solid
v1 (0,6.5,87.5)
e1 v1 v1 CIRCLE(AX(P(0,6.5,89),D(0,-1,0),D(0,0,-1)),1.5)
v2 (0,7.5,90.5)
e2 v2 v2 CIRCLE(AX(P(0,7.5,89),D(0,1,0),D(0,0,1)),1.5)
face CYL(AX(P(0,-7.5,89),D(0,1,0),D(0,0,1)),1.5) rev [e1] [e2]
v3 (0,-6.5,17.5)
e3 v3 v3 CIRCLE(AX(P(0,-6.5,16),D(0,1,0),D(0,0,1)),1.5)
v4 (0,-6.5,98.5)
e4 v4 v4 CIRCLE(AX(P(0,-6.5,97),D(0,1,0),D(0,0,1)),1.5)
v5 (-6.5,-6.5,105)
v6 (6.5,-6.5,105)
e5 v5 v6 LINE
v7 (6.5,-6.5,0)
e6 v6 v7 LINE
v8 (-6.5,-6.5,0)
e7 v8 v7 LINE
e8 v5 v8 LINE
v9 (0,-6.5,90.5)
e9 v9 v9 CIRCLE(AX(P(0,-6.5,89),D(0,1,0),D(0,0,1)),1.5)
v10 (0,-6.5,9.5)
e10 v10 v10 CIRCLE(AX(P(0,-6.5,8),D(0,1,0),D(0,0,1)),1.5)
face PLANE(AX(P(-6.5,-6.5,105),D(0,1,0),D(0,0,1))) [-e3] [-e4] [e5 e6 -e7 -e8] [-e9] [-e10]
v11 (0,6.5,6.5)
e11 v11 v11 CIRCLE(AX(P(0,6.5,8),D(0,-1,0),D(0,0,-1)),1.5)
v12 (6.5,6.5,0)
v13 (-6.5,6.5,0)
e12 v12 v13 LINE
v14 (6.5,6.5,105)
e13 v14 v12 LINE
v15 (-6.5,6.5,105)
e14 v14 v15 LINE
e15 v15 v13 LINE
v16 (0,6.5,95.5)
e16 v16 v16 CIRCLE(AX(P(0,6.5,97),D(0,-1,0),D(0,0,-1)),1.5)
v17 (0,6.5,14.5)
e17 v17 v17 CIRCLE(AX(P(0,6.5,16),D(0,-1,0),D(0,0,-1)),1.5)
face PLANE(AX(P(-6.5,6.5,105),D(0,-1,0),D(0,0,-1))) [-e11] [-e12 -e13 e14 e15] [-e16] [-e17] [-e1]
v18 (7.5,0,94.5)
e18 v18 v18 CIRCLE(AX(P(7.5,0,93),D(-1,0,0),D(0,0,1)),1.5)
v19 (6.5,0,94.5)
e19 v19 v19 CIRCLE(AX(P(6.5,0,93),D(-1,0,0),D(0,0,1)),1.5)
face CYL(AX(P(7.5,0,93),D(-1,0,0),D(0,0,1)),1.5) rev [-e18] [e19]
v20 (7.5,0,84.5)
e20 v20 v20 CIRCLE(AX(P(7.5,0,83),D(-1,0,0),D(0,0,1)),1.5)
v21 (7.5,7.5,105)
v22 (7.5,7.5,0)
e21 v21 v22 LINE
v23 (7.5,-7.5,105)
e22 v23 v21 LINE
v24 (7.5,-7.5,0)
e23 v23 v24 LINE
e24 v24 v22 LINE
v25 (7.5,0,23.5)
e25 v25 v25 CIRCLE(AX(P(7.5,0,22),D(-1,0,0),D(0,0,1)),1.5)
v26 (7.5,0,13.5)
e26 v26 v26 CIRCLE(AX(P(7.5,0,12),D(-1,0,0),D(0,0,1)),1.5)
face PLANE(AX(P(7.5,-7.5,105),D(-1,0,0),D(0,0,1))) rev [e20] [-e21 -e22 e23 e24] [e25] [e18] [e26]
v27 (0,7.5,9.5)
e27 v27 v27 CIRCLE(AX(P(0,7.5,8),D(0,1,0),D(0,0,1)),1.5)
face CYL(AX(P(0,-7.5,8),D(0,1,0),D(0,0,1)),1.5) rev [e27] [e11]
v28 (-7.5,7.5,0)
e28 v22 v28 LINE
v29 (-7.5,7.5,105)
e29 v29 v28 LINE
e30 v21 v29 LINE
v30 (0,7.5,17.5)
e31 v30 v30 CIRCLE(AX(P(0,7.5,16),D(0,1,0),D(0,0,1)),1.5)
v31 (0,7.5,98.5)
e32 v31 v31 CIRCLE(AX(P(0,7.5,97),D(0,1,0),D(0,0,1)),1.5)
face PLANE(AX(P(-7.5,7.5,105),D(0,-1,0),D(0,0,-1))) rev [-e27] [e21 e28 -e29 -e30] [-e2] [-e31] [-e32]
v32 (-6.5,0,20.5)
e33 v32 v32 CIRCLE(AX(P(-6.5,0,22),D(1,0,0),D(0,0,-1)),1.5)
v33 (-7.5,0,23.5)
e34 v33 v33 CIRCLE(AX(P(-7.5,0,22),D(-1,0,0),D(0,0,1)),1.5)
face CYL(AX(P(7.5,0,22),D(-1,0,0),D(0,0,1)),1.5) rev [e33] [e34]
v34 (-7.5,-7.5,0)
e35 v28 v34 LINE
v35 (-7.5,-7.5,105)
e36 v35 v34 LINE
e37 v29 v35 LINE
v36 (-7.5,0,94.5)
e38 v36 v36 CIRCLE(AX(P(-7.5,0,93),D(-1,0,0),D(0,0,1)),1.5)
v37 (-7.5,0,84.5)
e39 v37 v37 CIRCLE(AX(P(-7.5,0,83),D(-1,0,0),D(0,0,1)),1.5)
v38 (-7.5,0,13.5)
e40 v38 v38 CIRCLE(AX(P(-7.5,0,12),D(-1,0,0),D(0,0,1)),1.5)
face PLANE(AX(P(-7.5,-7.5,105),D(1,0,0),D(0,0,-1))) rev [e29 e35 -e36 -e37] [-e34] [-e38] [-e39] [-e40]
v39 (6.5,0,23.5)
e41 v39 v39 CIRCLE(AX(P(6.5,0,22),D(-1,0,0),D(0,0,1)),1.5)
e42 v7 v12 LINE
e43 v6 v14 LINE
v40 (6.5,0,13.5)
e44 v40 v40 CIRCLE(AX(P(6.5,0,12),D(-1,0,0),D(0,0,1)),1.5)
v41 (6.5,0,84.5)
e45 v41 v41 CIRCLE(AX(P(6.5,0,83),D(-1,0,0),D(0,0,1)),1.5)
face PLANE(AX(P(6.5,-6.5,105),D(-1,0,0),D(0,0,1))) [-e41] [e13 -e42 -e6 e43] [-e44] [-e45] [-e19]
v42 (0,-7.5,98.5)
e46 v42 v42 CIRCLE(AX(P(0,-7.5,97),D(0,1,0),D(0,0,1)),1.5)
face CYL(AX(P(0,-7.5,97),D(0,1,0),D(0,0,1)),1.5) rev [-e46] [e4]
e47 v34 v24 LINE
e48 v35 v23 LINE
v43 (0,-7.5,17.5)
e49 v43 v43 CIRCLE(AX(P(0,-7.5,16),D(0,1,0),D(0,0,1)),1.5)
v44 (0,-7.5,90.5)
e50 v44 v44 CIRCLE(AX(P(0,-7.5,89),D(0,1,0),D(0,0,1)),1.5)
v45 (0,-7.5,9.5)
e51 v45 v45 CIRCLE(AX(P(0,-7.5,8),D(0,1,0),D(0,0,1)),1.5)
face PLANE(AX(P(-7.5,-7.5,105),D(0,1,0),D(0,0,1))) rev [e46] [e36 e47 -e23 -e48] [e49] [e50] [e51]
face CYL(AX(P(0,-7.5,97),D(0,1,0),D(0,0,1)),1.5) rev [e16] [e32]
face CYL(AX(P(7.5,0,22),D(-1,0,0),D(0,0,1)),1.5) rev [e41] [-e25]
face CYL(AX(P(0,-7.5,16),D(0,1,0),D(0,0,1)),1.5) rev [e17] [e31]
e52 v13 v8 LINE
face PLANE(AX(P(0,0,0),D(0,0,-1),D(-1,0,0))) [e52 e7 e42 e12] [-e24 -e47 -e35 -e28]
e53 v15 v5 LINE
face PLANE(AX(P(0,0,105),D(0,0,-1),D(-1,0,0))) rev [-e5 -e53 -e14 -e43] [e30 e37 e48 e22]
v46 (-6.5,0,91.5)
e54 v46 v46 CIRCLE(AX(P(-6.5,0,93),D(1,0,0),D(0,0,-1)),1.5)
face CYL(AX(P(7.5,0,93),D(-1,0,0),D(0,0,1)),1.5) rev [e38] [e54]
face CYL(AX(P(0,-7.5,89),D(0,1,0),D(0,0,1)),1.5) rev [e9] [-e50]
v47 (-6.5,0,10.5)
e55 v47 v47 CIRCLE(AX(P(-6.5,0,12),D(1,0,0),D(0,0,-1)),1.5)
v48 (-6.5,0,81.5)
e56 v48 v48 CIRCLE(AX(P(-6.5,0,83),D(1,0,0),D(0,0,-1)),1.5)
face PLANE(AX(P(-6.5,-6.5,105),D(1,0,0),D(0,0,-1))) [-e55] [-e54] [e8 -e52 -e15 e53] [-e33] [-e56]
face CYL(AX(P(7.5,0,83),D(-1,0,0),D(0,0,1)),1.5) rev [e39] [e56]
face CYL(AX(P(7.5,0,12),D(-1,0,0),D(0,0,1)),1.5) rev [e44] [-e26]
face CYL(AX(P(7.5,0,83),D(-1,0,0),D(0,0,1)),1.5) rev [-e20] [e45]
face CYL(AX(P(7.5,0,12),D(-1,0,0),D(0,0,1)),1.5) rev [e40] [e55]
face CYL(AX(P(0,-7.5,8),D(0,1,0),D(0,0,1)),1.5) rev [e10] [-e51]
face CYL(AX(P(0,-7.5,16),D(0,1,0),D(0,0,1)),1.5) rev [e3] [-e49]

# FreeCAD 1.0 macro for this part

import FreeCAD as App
import Part
import Sketcher
from FreeCAD import Vector


def add_polygon(sketch, points):
    """Adds a closed chain of lines whose ends are joined by coincident constraints."""
    first, n = sketch.GeometryCount, len(points)
    for a, b in zip(points, points[1:] + points[:1]):
        sketch.addGeometry(Part.LineSegment(App.Vector(*a, 0), App.Vector(*b, 0)), False)
    for i in range(n):
        sketch.addConstraint(Sketcher.Constraint("Coincident", first + i, 2, first + (i + 1) % n, 1))

doc = App.newDocument("Part")
params = doc.addObject("Spreadsheet::Sheet", "Params")
for row, (alias, value) in enumerate([
    ("sketch1_width", "15 mm"),
    ("sketch1_width2", "13 mm"),
    ("pad1_length", "105 mm"),
    ("sketch2_diameter", "3 mm"),
    ("sketch3_diameter", "3 mm"),
], start=1):
    params.set(f"A{row}", alias)
    params.set(f"B{row}", "=" + value)
    params.setAlias(f"B{row}", alias)

body = doc.addObject("PartDesign::Body", "Body")

sketch1 = body.newObject("Sketcher::SketchObject", "Sketch")
sketch1.AttachmentSupport = (doc.getObject("XY_Plane"), [""])
sketch1.MapMode = "FlatFace"
add_polygon(sketch1, [(-7.5, 7.5), (-7.5, -7.5), (7.5, -7.5), (7.5, 7.5)])
add_polygon(sketch1, [(6.5, -6.5), (-6.5, -6.5), (-6.5, 6.5), (6.5, 6.5)])
sketch1.addConstraint([
    Sketcher.Constraint("Vertical", 0),
    Sketcher.Constraint("Horizontal", 1),
    Sketcher.Constraint("Vertical", 2),
    Sketcher.Constraint("Horizontal", 3),
    Sketcher.Constraint("Horizontal", 4),
    Sketcher.Constraint("Vertical", 5),
    Sketcher.Constraint("Horizontal", 6),
    Sketcher.Constraint("Vertical", 7),
    Sketcher.Constraint("Symmetric", 0, 2, 2, 2, -1, 1),
    Sketcher.Constraint("Symmetric", 4, 2, 6, 2, -1, 1),
    Sketcher.Constraint("Equal", 3, 0),
    Sketcher.Constraint("Equal", 6, 5),
    Sketcher.Constraint("DistanceX", 1, 1, 1, 2, 15.0),
    Sketcher.Constraint("DistanceX", 4, 2, 4, 1, 13.0),
])
sketch1.setExpression("Constraints[20]", "Params.sketch1_width")
sketch1.setExpression("Constraints[21]", "Params.sketch1_width2")
pad1 = body.newObject("PartDesign::Pad", "Pad")
pad1.Profile = sketch1
pad1.setExpression("Length", "Params.pad1_length")

sketch2 = body.newObject("Sketcher::SketchObject", "Sketch001")
sketch2.AttachmentSupport = (doc.getObject("XZ_Plane"), [""])
sketch2.MapMode = "FlatFace"
sketch2.AttachmentOffset = App.Placement(Vector(0, 0, -7.5), App.Rotation())
sketch2.addGeometry([
    Part.Circle(Vector(0, 97, 0), Vector(0, 0, 1), 1.5),
    Part.Circle(Vector(0, 89, 0), Vector(0, 0, 1), 1.5),
    Part.Circle(Vector(0, 16, 0), Vector(0, 0, 1), 1.5),
    Part.Circle(Vector(0, 8, 0), Vector(0, 0, 1), 1.5),
], False)
sketch2.addConstraint([
    Sketcher.Constraint("Equal", 0, 1),
    Sketcher.Constraint("Equal", 1, 2),
    Sketcher.Constraint("Equal", 2, 3),
    Sketcher.Constraint("PointOnObject", 0, 3, -2),
    Sketcher.Constraint("PointOnObject", 1, 3, -2),
    Sketcher.Constraint("PointOnObject", 2, 3, -2),
    Sketcher.Constraint("PointOnObject", 3, 3, -2),
    Sketcher.Constraint("Diameter", 0, 3.0),
    Sketcher.Constraint("DistanceY", -1, 1, 0, 3, 97.0),
    Sketcher.Constraint("DistanceY", -1, 1, 1, 3, 89.0),
    Sketcher.Constraint("DistanceY", -1, 1, 2, 3, 16.0),
    Sketcher.Constraint("DistanceY", -1, 1, 3, 3, 8.0),
])
sketch2.setExpression("Constraints[7]", "Params.sketch2_diameter")
pocket1 = body.newObject("PartDesign::Pocket", "Pocket")
pocket1.Profile = sketch2
pocket1.Type = "ThroughAll"
pocket1.Reversed = True

sketch3 = body.newObject("Sketcher::SketchObject", "Sketch002")
sketch3.AttachmentSupport = (doc.getObject("YZ_Plane"), [""])
sketch3.MapMode = "FlatFace"
sketch3.AttachmentOffset = App.Placement(Vector(0, 0, -7.5), App.Rotation())
sketch3.addGeometry([
    Part.Circle(Vector(0, 93, 0), Vector(0, 0, 1), 1.5),
    Part.Circle(Vector(0, 83, 0), Vector(0, 0, 1), 1.5),
    Part.Circle(Vector(0, 12, 0), Vector(0, 0, 1), 1.5),
    Part.Circle(Vector(0, 22, 0), Vector(0, 0, 1), 1.5),
], False)
sketch3.addConstraint([
    Sketcher.Constraint("Equal", 0, 1),
    Sketcher.Constraint("Equal", 1, 2),
    Sketcher.Constraint("Equal", 2, 3),
    Sketcher.Constraint("PointOnObject", 0, 3, -2),
    Sketcher.Constraint("PointOnObject", 1, 3, -2),
    Sketcher.Constraint("PointOnObject", 2, 3, -2),
    Sketcher.Constraint("PointOnObject", 3, 3, -2),
    Sketcher.Constraint("Diameter", 0, 3.0),
    Sketcher.Constraint("DistanceY", -1, 1, 0, 3, 93.0),
    Sketcher.Constraint("DistanceY", -1, 1, 1, 3, 83.0),
    Sketcher.Constraint("DistanceY", -1, 1, 2, 3, 12.0),
    Sketcher.Constraint("DistanceY", -1, 1, 3, 3, 22.0),
])
sketch3.setExpression("Constraints[7]", "Params.sketch3_diameter")
pocket2 = body.newObject("PartDesign::Pocket", "Pocket001")
pocket2.Profile = sketch3
pocket2.Type = "ThroughAll"
pocket2.Reversed = True

doc.recompute()
